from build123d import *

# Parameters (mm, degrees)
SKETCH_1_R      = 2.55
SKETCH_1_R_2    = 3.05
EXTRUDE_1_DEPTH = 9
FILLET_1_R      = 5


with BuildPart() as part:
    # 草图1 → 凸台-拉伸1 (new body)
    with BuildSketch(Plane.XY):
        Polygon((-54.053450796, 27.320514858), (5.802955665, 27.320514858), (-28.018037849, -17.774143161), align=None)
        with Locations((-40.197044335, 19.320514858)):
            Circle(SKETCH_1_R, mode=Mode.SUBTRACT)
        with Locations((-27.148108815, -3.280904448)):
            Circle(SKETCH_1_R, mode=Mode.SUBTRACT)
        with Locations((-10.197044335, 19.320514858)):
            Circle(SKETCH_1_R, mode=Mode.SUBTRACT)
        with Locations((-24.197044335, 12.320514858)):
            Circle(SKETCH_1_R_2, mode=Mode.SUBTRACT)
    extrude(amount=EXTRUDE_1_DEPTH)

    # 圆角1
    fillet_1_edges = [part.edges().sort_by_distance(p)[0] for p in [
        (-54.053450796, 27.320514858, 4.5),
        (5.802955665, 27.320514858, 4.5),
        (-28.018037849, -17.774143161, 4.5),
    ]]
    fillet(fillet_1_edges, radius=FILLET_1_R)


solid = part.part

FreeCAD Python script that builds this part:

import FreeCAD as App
import Part
import Sketcher

V = App.Vector
Q = App.Units.Quantity


def edges_at(feature, points):
    """Names of the edges that pass closest to the given points."""
    edges = feature.Shape.Edges
    near = lambda p: min(range(len(edges)), key=lambda i: edges[i].distToShape(Part.Vertex(*p))[0])
    return sorted({f"Edge{near(p) + 1}" for p in points})


def add_polygon(sketch, points):
    """Adds a closed chain of lines whose ends are joined by coincident constraints."""
    first, n = sketch.GeometryCount, len(points)
    for a, b in zip(points, points[1:] + points[:1]):
        sketch.addGeometry(Part.LineSegment(App.Vector(*a, 0), App.Vector(*b, 0)), False)
    for i in range(n):
        sketch.addConstraint(Sketcher.Constraint("Coincident", first + i, 2, first + (i + 1) % n, 1))

doc = App.newDocument("Part")
params = doc.addObject("Spreadsheet::Sheet", "Params")
for row, (alias, value) in enumerate([
    ("sketch1_diameter", "5.1 mm"),
    ("sketch1_diameter2", "6.1 mm"),
    ("pad1_length", "9 mm"),
    ("fillet_radius", "5 mm"),
], start=1):
    params.set(f"A{row}", alias)
    params.set(f"B{row}", "=" + value)
    params.setAlias(f"B{row}", alias)

body = doc.addObject("PartDesign::Body", "Body")

# Sketch on XY plane
sketch1 = body.newObject("Sketcher::SketchObject", "Sketch")
sketch1.AttachmentSupport = (doc.getObject("XY_Plane"), [""])
sketch1.MapMode = "FlatFace"
add_polygon(sketch1, [(5.8, 27.3), (-54.1, 27.3), (-28, -17.8)])  # lines 0-2
sketch1.addGeometry(Part.Circle(V(-27.1, -3.3, 0), V(0, 0, 1), 2.5), False)  # 3
sketch1.addGeometry(Part.Circle(V(-24.2, 12.3, 0), V(0, 0, 1), 3), False)  # 4
sketch1.addGeometry(Part.Circle(V(-10.2, 19.3, 0), V(0, 0, 1), 2.5), False)  # 5
sketch1.addGeometry(Part.Circle(V(-40.2, 19.3, 0), V(0, 0, 1), 2.5), False)  # 6
sketch1.addConstraint([
    Sketcher.Constraint("Horizontal", 0),
    Sketcher.Constraint("Equal", 3, 5),
    Sketcher.Constraint("Equal", 5, 6),
    Sketcher.Constraint("Horizontal", 5, 3, 6, 3),
    Sketcher.Constraint("Diameter", 3, 5.1),
    Sketcher.Constraint("Diameter", 4, 6.1),
    Sketcher.Constraint("Angle", 1, Q("-60 deg")),
    Sketcher.Constraint("DistanceX", 4, 3, 5, 3, 14.0),
    Sketcher.Constraint("DistanceY", 4, 3, 5, 3, 7.0),
    Sketcher.Constraint("DistanceX", 6, 3, 4, 3, 16.0),
    Sketcher.Constraint("DistanceY", 6, 3, 0, 2, 8.0),
    Sketcher.Constraint("DistanceX", 5, 3, 2, 2, 16.0),
    Sketcher.Constraint("DistanceX", 0, 2, 0, 1, 59.856406),
    Sketcher.Constraint("DistanceX", 3, 3, -1, 1, 27.148109),
    Sketcher.Constraint("DistanceX", 0, 2, -1, 1, 54.053451),
    Sketcher.Constraint("DistanceY", 3, 3, 4, 3, 15.601419),
    Sketcher.Constraint("DistanceX", 1, 2, 3, 3, 0.869929),
    Sketcher.Constraint("DistanceY", 3, 3, -1, 1, 3.280904),
])
sketch1.setExpression("Constraints[7]", "Params.sketch1_diameter")
sketch1.setExpression("Constraints[8]", "Params.sketch1_diameter2")
pad1 = body.newObject("PartDesign::Pad", "Pad")
pad1.Profile = sketch1
pad1.setExpression("Length", "Params.pad1_length")
doc.recompute()

fillet = body.newObject("PartDesign::Fillet", "Fillet")
fillet.Base = (pad1, edges_at(pad1, [(-54.053, 27.321, 4.5), (5.803, 27.321, 4.5), (-28.018, -17.774, 4.5)]))
fillet.setExpression("Radius", "Params.fillet_radius")

doc.recompute()
